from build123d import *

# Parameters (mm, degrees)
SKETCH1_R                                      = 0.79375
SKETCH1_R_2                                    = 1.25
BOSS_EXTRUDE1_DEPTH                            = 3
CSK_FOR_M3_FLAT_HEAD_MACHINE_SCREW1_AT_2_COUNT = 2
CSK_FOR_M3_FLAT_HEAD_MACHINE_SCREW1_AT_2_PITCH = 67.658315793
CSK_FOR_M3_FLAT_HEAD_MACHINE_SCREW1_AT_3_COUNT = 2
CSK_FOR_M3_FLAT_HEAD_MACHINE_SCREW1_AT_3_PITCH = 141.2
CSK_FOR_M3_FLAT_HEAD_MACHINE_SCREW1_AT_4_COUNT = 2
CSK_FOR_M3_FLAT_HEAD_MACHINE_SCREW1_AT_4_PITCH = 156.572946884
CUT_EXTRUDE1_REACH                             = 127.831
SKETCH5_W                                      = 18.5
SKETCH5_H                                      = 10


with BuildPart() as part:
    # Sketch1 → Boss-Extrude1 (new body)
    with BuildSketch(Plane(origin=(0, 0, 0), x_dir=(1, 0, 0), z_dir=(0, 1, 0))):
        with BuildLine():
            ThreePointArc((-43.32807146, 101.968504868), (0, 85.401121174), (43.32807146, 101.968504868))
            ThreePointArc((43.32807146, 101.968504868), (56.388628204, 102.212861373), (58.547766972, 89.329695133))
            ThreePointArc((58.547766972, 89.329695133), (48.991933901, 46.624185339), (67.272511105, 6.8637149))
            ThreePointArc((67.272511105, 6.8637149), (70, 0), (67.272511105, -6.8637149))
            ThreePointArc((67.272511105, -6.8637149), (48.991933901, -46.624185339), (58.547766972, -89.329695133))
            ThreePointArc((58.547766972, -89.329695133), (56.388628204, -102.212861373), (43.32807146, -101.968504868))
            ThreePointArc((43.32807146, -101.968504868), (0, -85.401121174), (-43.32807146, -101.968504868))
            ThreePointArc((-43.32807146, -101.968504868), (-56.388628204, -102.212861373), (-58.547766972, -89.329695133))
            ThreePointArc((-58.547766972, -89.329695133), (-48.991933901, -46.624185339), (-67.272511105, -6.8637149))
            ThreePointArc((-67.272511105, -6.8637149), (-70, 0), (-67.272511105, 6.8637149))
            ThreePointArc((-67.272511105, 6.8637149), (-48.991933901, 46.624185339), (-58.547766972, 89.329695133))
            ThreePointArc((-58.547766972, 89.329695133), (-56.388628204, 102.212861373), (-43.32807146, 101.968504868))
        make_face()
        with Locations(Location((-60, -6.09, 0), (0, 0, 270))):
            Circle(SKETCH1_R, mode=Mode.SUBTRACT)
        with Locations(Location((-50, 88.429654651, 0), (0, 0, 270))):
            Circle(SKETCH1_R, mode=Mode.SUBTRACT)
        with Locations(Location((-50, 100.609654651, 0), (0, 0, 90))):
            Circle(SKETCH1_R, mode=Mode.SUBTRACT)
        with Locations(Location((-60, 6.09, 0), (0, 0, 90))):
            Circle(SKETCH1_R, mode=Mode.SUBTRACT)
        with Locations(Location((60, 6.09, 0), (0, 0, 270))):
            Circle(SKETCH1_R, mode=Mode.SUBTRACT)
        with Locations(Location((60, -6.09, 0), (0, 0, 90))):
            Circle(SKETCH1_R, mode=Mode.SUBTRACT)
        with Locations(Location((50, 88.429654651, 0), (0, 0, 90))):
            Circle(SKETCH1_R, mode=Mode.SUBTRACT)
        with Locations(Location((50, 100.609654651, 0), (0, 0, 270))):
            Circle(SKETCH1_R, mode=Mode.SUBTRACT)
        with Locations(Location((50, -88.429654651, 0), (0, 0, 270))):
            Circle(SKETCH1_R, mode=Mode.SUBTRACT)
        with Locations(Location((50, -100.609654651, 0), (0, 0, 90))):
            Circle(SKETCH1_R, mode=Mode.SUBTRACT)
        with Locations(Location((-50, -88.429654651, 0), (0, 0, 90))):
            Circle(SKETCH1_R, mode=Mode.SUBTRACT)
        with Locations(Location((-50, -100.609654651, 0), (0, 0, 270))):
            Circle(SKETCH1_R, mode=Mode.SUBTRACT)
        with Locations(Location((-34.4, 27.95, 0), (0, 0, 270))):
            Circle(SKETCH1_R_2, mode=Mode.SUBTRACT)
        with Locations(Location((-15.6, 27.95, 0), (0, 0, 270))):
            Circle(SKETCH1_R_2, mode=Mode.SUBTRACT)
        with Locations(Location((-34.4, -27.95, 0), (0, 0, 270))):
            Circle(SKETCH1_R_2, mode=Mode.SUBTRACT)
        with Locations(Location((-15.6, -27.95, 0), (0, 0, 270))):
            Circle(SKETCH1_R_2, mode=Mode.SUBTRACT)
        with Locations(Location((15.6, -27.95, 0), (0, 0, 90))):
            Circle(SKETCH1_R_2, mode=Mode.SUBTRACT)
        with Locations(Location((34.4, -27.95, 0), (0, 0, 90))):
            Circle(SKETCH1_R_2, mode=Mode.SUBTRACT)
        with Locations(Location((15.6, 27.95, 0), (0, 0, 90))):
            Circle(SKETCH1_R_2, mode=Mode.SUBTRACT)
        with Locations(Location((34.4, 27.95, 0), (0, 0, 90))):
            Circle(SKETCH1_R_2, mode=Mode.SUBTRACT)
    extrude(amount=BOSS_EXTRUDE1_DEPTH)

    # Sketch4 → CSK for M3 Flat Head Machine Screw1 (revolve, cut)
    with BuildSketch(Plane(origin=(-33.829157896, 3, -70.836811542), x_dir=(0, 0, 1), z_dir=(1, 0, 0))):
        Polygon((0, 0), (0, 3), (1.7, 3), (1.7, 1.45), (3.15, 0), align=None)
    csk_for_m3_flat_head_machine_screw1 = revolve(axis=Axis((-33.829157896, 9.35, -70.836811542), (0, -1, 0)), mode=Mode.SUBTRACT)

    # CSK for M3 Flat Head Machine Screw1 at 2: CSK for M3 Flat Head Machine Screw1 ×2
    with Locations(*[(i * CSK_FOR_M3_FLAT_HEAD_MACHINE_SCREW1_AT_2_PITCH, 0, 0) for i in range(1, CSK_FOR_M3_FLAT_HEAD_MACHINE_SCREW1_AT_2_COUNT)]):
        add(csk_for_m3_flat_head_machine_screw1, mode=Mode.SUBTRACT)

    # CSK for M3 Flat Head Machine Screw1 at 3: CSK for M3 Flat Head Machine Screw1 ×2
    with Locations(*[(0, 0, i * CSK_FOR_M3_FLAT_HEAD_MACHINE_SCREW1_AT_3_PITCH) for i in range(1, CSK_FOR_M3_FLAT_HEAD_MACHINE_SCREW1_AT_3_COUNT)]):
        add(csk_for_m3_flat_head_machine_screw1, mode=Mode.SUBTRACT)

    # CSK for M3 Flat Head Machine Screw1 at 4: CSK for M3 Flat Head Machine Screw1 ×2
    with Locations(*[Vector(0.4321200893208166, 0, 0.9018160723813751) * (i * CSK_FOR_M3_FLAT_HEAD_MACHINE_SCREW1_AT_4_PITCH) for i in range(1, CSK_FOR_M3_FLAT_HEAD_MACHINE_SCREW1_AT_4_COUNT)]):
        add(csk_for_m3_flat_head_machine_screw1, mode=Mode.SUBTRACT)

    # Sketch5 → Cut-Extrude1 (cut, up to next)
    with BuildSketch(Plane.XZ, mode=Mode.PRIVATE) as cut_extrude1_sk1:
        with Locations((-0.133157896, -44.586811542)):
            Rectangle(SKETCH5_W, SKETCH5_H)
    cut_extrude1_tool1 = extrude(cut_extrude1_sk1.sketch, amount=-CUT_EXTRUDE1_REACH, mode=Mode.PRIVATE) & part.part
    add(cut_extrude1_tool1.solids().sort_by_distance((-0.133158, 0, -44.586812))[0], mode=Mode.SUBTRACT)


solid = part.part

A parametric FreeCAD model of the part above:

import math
import FreeCAD as App
import Part
import Sketcher
from FreeCAD import Vector
Q = App.Units.Quantity

doc = App.newDocument("Part")
body = doc.addObject("PartDesign::Body", "Body")

# Sketch on XZ plane
sketch1 = doc.addObject("Sketcher::SketchObject", "Sketch")
body.addObject(sketch1)
sketch1.AttachmentSupport = (doc.XZ_Plane, [""])
sketch1.MapMode = "FlatFace"
sketch1.addGeometry([
    Part.ArcOfCircle(Part.Circle(Vector(0, -150.3, 0), Vector(0, 0, 1), 64.9), math.radians(48), math.radians(132)),  # 0
    Part.ArcOfCircle(Part.Circle(Vector(-50, -94.5, 0), Vector(0, 0, 1), 10), math.radians(149), math.radians(312)),  # 1
    Part.ArcOfCircle(Part.Circle(Vector(-117, -53.8, 0), Vector(0, 0, 1), 68.4), math.radians(-31), math.radians(43)),  # 2
    Part.ArcOfCircle(Part.Circle(Vector(-60, 0, 0), Vector(0, 0, 1), 10), math.radians(137), math.radians(223)),  # 3
    Part.ArcOfCircle(Part.Circle(Vector(-117, 53.8, 0), Vector(0, 0, 1), 68.4), math.radians(-43), math.radians(31)),  # 4
    Part.ArcOfCircle(Part.Circle(Vector(-50, 94.5, 0), Vector(0, 0, 1), 10), math.radians(48), math.radians(211)),  # 5
    Part.ArcOfCircle(Part.Circle(Vector(0, 150.3, 0), Vector(0, 0, 1), 64.9), math.radians(-132), math.radians(-48)),  # 6
    Part.ArcOfCircle(Part.Circle(Vector(50, 94.5, 0), Vector(0, 0, 1), 10), math.radians(-31), math.radians(132)),  # 7
    Part.ArcOfCircle(Part.Circle(Vector(117, 53.8, 0), Vector(0, 0, 1), 68.4), math.radians(149), math.radians(223)),  # 8
    Part.ArcOfCircle(Part.Circle(Vector(60, 0, 0), Vector(0, 0, 1), 10), math.radians(-43), math.radians(43)),  # 9
    Part.ArcOfCircle(Part.Circle(Vector(117, -53.8, 0), Vector(0, 0, 1), 68.4), math.radians(137), math.radians(211)),  # 10
    Part.ArcOfCircle(Part.Circle(Vector(50, -94.5, 0), Vector(0, 0, 1), 10), math.radians(-132), math.radians(31)),  # 11
    Part.Circle(Vector(50, 100.6, 0), Vector(0, 0, 1), 0.8),  # 12
    Part.Circle(Vector(50, 88.4, 0), Vector(0, 0, 1), 0.8),  # 13
    Part.Circle(Vector(34.4, 27.9, 0), Vector(0, 0, 1), 1.2),  # 14
    Part.Circle(Vector(60, 6.1, 0), Vector(0, 0, 1), 0.8),  # 15
    Part.Circle(Vector(15.6, 27.9, 0), Vector(0, 0, 1), 1.2),  # 16
    Part.Circle(Vector(-50, 100.6, 0), Vector(0, 0, 1), 0.8),  # 17
    Part.Circle(Vector(-50, 88.4, 0), Vector(0, 0, 1), 0.8),  # 18
    Part.Circle(Vector(-15.6, 27.9, 0), Vector(0, 0, 1), 1.2),  # 19
    Part.Circle(Vector(-34.4, 27.9, 0), Vector(0, 0, 1), 1.2),  # 20
    Part.Circle(Vector(-60, 6.1, 0), Vector(0, 0, 1), 0.8),  # 21
    Part.Circle(Vector(60, -6.1, 0), Vector(0, 0, 1), 0.8),  # 22
    Part.Circle(Vector(34.4, -27.9, 0), Vector(0, 0, 1), 1.2),  # 23
    Part.Circle(Vector(15.6, -27.9, 0), Vector(0, 0, 1), 1.2),  # 24
    Part.Circle(Vector(50, -88.4, 0), Vector(0, 0, 1), 0.8),  # 25
    Part.Circle(Vector(50, -100.6, 0), Vector(0, 0, 1), 0.8),  # 26
    Part.Circle(Vector(-15.6, -27.9, 0), Vector(0, 0, 1), 1.2),  # 27
    Part.Circle(Vector(-60, -6.1, 0), Vector(0, 0, 1), 0.8),  # 28
    Part.Circle(Vector(-34.4, -27.9, 0), Vector(0, 0, 1), 1.2),  # 29
    Part.Circle(Vector(-50, -88.4, 0), Vector(0, 0, 1), 0.8),  # 30
    Part.Circle(Vector(-50, -100.6, 0), Vector(0, 0, 1), 0.8),  # 31
], False)
sketch1.addConstraint([
    Sketcher.Constraint("Tangent", 0, 2, 1, 2),
    Sketcher.Constraint("Tangent", 1, 1, 2, 1),
    Sketcher.Constraint("Tangent", 2, 2, 3, 2),
    Sketcher.Constraint("Tangent", 3, 1, 4, 1),
    Sketcher.Constraint("Tangent", 4, 2, 5, 2),
    Sketcher.Constraint("Tangent", 5, 1, 6, 1),
    Sketcher.Constraint("Tangent", 6, 2, 7, 2),
    Sketcher.Constraint("Tangent", 7, 1, 8, 1),
    Sketcher.Constraint("Tangent", 8, 2, 9, 2),
    Sketcher.Constraint("Tangent", 9, 1, 10, 1),
    Sketcher.Constraint("Tangent", 10, 2, 11, 2),
    Sketcher.Constraint("Tangent", 11, 1, 0, 1),
    Sketcher.Constraint("Equal", 1, 3),
    Sketcher.Constraint("Equal", 2, 4),
    Sketcher.Constraint("Equal", 3, 5),
    Sketcher.Constraint("Equal", 0, 6),
    Sketcher.Constraint("Equal", 5, 7),
    Sketcher.Constraint("Equal", 4, 8),
    Sketcher.Constraint("Equal", 7, 9),
    Sketcher.Constraint("Equal", 8, 10),
    Sketcher.Constraint("Equal", 9, 11),
    Sketcher.Constraint("Equal", 12, 13),
    Sketcher.Constraint("Equal", 13, 15),
    Sketcher.Constraint("Equal", 14, 16),
    Sketcher.Constraint("Equal", 15, 17),
    Sketcher.Constraint("Equal", 17, 18),
    Sketcher.Constraint("Equal", 16, 19),
    Sketcher.Constraint("Equal", 19, 20),
    Sketcher.Constraint("Equal", 18, 21),
    Sketcher.Constraint("Equal", 21, 22),
    Sketcher.Constraint("Equal", 20, 23),
    Sketcher.Constraint("Equal", 23, 24),
    Sketcher.Constraint("Equal", 22, 25),
    Sketcher.Constraint("Equal", 25, 26),
    Sketcher.Constraint("Equal", 24, 27),
    Sketcher.Constraint("Equal", 26, 28),
    Sketcher.Constraint("Equal", 27, 29),
    Sketcher.Constraint("Equal", 28, 30),
    Sketcher.Constraint("Equal", 30, 31),
    Sketcher.Constraint("Symmetric", 0, 3, 6, 3, -1, 1),
    Sketcher.Constraint("Symmetric", 2, 3, 8, 3, -1, 1),
    Sketcher.Constraint("Symmetric", 4, 3, 10, 3, -1, 1),
    Sketcher.Constraint("Symmetric", 21, 3, 22, 3, -1, 1),
    Sketcher.Constraint("Symmetric", 20, 3, 23, 3, -1, 1),
    Sketcher.Constraint("Symmetric", 19, 3, 24, 3, -1, 1),
    Sketcher.Constraint("Symmetric", 18, 3, 25, 3, -1, 1),
    Sketcher.Constraint("Symmetric", 17, 3, 26, 3, -1, 1),
    Sketcher.Constraint("Symmetric", 16, 3, 27, 3, -1, 1),
    Sketcher.Constraint("Symmetric", 15, 3, 28, 3, -1, 1),
    Sketcher.Constraint("Symmetric", 14, 3, 29, 3, -1, 1),
    Sketcher.Constraint("Symmetric", 13, 3, 30, 3, -1, 1),
    Sketcher.Constraint("Symmetric", 12, 3, 31, 3, -1, 1),
    Sketcher.Constraint("Symmetric", 5, 3, 7, 3, -2),
    Sketcher.Constraint("Symmetric", 12, 3, 17, 3, -2),
    Sketcher.Constraint("Symmetric", 13, 3, 18, 3, -2),
    Sketcher.Constraint("Symmetric", 16, 3, 19, 3, -2),
    Sketcher.Constraint("Symmetric", 14, 3, 20, 3, -2),
    Sketcher.Constraint("Symmetric", 15, 3, 21, 3, -2),
    Sketcher.Constraint("PointOnObject", 3, 3, -1),
    Sketcher.Constraint("Horizontal", 14, 3, 16, 3),
    Sketcher.Constraint("Vertical", 11, 3, 12, 3),
    Sketcher.Constraint("Vertical", 12, 3, 13, 3),
    Sketcher.Constraint("Vertical", 9, 3, 15, 3),
    Sketcher.Constraint("Radius", 1, 10.0),
    Sketcher.Constraint("Diameter", 14, 2.5),
    Sketcher.Constraint("DistanceX", 1, 3, -1, 1, 50.0),
    Sketcher.Constraint("DistanceX", 3, 3, -1, 1, 60.0),
    Sketcher.Constraint("DistanceX", 19, 3, 14, 3, 50.0),
    Sketcher.Constraint("Diameter", 12, 1.5875),
    Sketcher.Constraint("DistanceX", -1, 1, 14, 3, 34.4),
    Sketcher.Constraint("DistanceY", 23, 3, 14, 3, 55.9),
    Sketcher.Constraint("DistanceY", -1, 1, 15, 3, 6.09),
    Sketcher.Constraint("Radius", 0, 64.940851),
    Sketcher.Constraint("DistanceY", 7, 3, 12, 3, 6.09),
    Sketcher.Constraint("DistanceY", 13, 3, 7, 3, 6.09),
    Sketcher.Constraint("Radius", 2, 68.415636),
    Sketcher.Constraint("DistanceY", 0, 3, -1, 1, 150.341972),
])
pad1 = doc.addObject("PartDesign::Pad", "Pad")
body.addObject(pad1)
pad1.Profile = sketch1
pad1.Length = 3
pad1.Reversed = True

# Sketch on YZ plane
sketch2 = doc.addObject("Sketcher::SketchObject", "Sketch001")
body.addObject(sketch2)
sketch2.AttachmentSupport = (doc.YZ_Plane, [""])
sketch2.MapMode = "FlatFace"
sketch2.AttachmentOffset = App.Placement(Vector(0, 0, -33.829158), App.Rotation())
sketch2.addGeometry([
    Part.LineSegment(Vector(0, -70.8, 0), Vector(3, -70.8, 0)),  # 0
    Part.LineSegment(Vector(3, -70.8, 0), Vector(3, -67.7, 0)),  # 1
    Part.LineSegment(Vector(3, -67.7, 0), Vector(1.6, -69.1, 0)),  # 2
    Part.LineSegment(Vector(1.6, -69.1, 0), Vector(0, -69.1, 0)),  # 3
    Part.LineSegment(Vector(0, -69.1, 0), Vector(0, -70.8, 0)),  # 4
], False)
sketch2.addGeometry(Part.LineSegment(Vector(3, -70.8, 0), Vector(0, -70.8, 0)), True)  # axis
sketch2.addConstraint([
    Sketcher.Constraint("Coincident", 0, 2, 1, 1),
    Sketcher.Constraint("Coincident", 1, 2, 2, 1),
    Sketcher.Constraint("Coincident", 2, 2, 3, 1),
    Sketcher.Constraint("Coincident", 3, 2, 4, 1),
    Sketcher.Constraint("Coincident", 4, 2, 0, 1),
    Sketcher.Constraint("Horizontal", 0),
    Sketcher.Constraint("Vertical", 1),
    Sketcher.Constraint("Horizontal", 3),
    Sketcher.Constraint("Vertical", 4),
    Sketcher.Constraint("Horizontal", 5),
    Sketcher.Constraint("Coincident", 5, 1, 0, 2),
    Sketcher.Constraint("PointOnObject", 3, 2, -2),
    Sketcher.Constraint("PointOnObject", 5, 2, -2),
    Sketcher.Constraint("DistanceX", 0, 1, 0, 2, 3.0),
    Sketcher.Constraint("Angle", 2, Q("-135 deg")),
    Sketcher.Constraint("DistanceY", 4, 2, 4, 1, 1.7),
    Sketcher.Constraint("DistanceX", 3, 2, 3, 1, 1.55),
    Sketcher.Constraint("DistanceY", 0, 2, -1, 1, 70.836812),
])
groove = doc.addObject("PartDesign::Groove", "Groove")
body.addObject(groove)
groove.Profile = sketch2
groove.ReferenceAxis = (sketch2, ["Axis0"])
groove.Angle = 360
doc.recompute()

linearpattern = doc.addObject("PartDesign::LinearPattern", "LinearPattern")
body.addObject(linearpattern)
linearpattern.Originals = [groove]
linearpattern.Direction = (doc.X_Axis, [""])
linearpattern.Mode = "offset"
linearpattern.Offset = 67.658316
linearpattern.Occurrences = 2
body.Tip = linearpattern
doc.recompute()

linearpattern2 = doc.addObject("PartDesign::LinearPattern", "LinearPattern001")
body.addObject(linearpattern2)
linearpattern2.Originals = [groove]
linearpattern2.Direction = (doc.Z_Axis, [""])
linearpattern2.Mode = "offset"
linearpattern2.Offset = 141.2
linearpattern2.Occurrences = 2
body.Tip = linearpattern2
doc.recompute()

datumline = doc.addObject("PartDesign::Line", "DatumLine")
body.addObject(datumline)
datumline.Placement = App.Placement(Vector(0, 0, 0), App.Rotation(Vector(0, 0, 1), Vector(0.432120089, 0, 0.901816072)))
linearpattern3 = doc.addObject("PartDesign::LinearPattern", "LinearPattern002")
body.addObject(linearpattern3)
linearpattern3.Originals = [groove]
linearpattern3.Direction = (datumline, [""])
linearpattern3.Mode = "offset"
linearpattern3.Offset = 156.572947
linearpattern3.Occurrences = 2
body.Tip = linearpattern3

# Sketch on XZ plane
sketch3 = doc.addObject("Sketcher::SketchObject", "Sketch002")
body.addObject(sketch3)
sketch3.AttachmentSupport = (doc.XZ_Plane, [""])
sketch3.MapMode = "FlatFace"
sketch3.addGeometry([
    Part.LineSegment(Vector(-9, -40, 0), Vector(-9, -50, 0)),
    Part.LineSegment(Vector(-9, -50, 0), Vector(9, -50, 0)),
    Part.LineSegment(Vector(9, -50, 0), Vector(9, -40, 0)),
    Part.LineSegment(Vector(9, -40, 0), Vector(-9, -40, 0)),
], False)
sketch3.addConstraint([
    Sketcher.Constraint("Coincident", 0, 2, 1, 1),
    Sketcher.Constraint("Coincident", 1, 2, 2, 1),
    Sketcher.Constraint("Coincident", 2, 2, 3, 1),
    Sketcher.Constraint("Coincident", 3, 2, 0, 1),
    Sketcher.Constraint("Vertical", 0),
    Sketcher.Constraint("Horizontal", 1),
    Sketcher.Constraint("Vertical", 2),
    Sketcher.Constraint("Horizontal", 3),
    Sketcher.Constraint("DistanceY", 0, 2, 0, 1, 10.0),
    Sketcher.Constraint("DistanceX", 1, 1, 1, 2, 18.5),
    Sketcher.Constraint("DistanceY", 0, 2, -1, 1, 49.586812),
    Sketcher.Constraint("DistanceX", 0, 2, -1, 1, 9.383158),
])
pocket1 = doc.addObject("PartDesign::Pocket", "Pocket")
body.addObject(pocket1)
pocket1.Profile = sketch3
pocket1.Type = "UpToFirst"

doc.recompute()
